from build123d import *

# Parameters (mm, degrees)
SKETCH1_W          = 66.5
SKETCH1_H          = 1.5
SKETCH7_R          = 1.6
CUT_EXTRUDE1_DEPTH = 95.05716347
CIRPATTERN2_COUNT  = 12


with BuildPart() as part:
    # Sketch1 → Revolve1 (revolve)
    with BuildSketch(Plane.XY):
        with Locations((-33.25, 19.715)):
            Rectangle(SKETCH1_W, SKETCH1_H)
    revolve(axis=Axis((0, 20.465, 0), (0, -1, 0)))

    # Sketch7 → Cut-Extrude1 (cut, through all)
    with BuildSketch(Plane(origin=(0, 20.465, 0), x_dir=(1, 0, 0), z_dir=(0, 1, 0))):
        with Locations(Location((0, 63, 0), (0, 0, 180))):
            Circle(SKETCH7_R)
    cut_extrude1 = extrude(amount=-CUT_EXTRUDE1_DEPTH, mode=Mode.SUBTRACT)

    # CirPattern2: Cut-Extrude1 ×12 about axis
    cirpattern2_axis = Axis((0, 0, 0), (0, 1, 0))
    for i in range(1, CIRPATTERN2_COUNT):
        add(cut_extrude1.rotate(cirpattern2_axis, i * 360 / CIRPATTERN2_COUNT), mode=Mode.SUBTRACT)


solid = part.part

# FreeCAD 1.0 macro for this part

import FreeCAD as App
import Part
import Sketcher

V = App.Vector

doc = App.newDocument("Part")
body = doc.addObject("PartDesign::Body", "Body")

# Sketch on XY plane
sketch1 = doc.addObject("Sketcher::SketchObject", "Sketch")
body.addObject(sketch1)
sketch1.AttachmentSupport = (doc.XY_Plane, [""])
sketch1.MapMode = "FlatFace"
sketch1.addGeometry([
    Part.LineSegment(V(-66.5, 20.465, 0), V(-66.5, 18.965, 0)),
    Part.LineSegment(V(-66.5, 18.965, 0), V(0, 18.965, 0)),
    Part.LineSegment(V(0, 18.965, 0), V(0, 20.465, 0)),
    Part.LineSegment(V(0, 20.465, 0), V(-66.5, 20.465, 0)),
], False)
sketch1.addConstraint([
    Sketcher.Constraint("Coincident", 0, 2, 1, 1),
    Sketcher.Constraint("Coincident", 1, 2, 2, 1),
    Sketcher.Constraint("Coincident", 2, 2, 3, 1),
    Sketcher.Constraint("Coincident", 3, 2, 0, 1),
    Sketcher.Constraint("Vertical", 0),
    Sketcher.Constraint("Horizontal", 1),
    Sketcher.Constraint("Vertical", 2),
    Sketcher.Constraint("Horizontal", 3),
    Sketcher.Constraint("PointOnObject", 1, 2, -2),
    Sketcher.Constraint("DistanceX", 1, 1, 1, 2, 66.5),
    Sketcher.Constraint("DistanceY", 0, 2, 0, 1, 1.5),
    Sketcher.Constraint("DistanceY", -1, 1, 0, 2, 18.965),
])
revolution = doc.addObject("PartDesign::Revolution", "Revolution")
body.addObject(revolution)
revolution.Profile = sketch1
revolution.ReferenceAxis = (sketch1, ["V_Axis"])
revolution.Angle = 360

# Sketch on XZ plane
sketch2 = doc.addObject("Sketcher::SketchObject", "Sketch001")
body.addObject(sketch2)
sketch2.AttachmentSupport = (doc.XZ_Plane, [""])
sketch2.MapMode = "FlatFace"
sketch2.AttachmentOffset = App.Placement(V(0, 0, -20.465), App.Rotation())
sketch2.addGeometry(Part.Circle(V(0, -63, 0), V(0, 0, 1), 1.6), False)
sketch2.addConstraint([
    Sketcher.Constraint("PointOnObject", 0, 3, -2),
    Sketcher.Constraint("Diameter", 0, 3.2),
    Sketcher.Constraint("DistanceY", 0, 3, -1, 1, 63.0),
])
pocket1 = doc.addObject("PartDesign::Pocket", "Pocket")
body.addObject(pocket1)
pocket1.Profile = sketch2
pocket1.Type = "ThroughAll"
pocket1.Reversed = True
doc.recompute()

polarpattern = doc.addObject("PartDesign::PolarPattern", "PolarPattern")
body.addObject(polarpattern)
polarpattern.Originals = [pocket1]
polarpattern.Axis = (doc.Y_Axis, [""])
polarpattern.Angle = 360
polarpattern.Occurrences = 12
body.Tip = polarpattern

doc.recompute()
